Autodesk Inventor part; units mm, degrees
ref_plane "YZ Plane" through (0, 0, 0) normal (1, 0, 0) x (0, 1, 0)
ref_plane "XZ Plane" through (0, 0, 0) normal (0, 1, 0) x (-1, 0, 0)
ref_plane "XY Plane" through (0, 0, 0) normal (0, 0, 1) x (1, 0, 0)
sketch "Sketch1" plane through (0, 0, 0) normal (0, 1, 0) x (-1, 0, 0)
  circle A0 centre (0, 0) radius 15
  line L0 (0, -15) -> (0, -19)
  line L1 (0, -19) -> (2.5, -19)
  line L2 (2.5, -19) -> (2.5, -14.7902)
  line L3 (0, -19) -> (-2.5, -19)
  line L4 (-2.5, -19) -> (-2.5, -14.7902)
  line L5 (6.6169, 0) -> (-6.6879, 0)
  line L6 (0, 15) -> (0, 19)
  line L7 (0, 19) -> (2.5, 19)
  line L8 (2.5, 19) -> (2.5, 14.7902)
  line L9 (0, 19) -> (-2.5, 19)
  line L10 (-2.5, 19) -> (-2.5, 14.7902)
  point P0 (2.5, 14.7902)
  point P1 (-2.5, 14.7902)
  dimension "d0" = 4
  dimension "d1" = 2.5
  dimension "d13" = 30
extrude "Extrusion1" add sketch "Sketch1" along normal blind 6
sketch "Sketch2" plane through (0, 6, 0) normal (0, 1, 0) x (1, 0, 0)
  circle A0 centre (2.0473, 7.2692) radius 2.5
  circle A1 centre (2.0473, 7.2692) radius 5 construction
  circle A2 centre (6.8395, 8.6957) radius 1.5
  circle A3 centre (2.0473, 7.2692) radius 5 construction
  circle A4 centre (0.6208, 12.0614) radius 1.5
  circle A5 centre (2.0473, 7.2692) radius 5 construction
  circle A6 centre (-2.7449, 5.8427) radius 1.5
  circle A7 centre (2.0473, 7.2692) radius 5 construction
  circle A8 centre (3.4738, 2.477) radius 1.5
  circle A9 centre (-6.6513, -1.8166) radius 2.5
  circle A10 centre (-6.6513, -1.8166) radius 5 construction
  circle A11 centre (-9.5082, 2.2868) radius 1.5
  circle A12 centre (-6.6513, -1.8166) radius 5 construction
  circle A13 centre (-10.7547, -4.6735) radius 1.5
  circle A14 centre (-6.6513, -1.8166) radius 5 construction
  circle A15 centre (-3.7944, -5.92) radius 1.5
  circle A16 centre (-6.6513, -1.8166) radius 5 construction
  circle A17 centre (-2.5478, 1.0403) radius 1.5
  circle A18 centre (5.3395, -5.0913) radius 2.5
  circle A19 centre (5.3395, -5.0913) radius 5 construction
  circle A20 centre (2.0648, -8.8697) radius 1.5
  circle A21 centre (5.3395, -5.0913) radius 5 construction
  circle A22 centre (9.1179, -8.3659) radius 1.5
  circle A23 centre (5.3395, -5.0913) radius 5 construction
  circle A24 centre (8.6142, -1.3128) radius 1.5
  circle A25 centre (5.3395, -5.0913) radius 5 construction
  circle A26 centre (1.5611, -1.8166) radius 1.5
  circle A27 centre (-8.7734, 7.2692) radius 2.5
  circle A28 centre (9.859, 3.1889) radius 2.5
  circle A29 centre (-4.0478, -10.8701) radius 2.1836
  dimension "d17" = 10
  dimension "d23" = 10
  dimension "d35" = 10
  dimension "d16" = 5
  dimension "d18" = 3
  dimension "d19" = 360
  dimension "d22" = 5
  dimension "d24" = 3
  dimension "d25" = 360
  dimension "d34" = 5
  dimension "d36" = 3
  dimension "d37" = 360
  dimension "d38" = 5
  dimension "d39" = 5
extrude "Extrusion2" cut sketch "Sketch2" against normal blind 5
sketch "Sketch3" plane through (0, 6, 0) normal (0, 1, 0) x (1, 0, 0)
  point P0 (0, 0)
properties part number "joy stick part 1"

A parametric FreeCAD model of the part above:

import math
import FreeCAD as App
import Part
import Sketcher

doc = App.newDocument("Part")
body = doc.addObject("PartDesign::Body", "Body")

# Sketch on XZ plane
sketch1 = body.newObject("Sketcher::SketchObject", "Sketch")
sketch1.AttachmentSupport = (doc.getObject("XZ_Plane"), [""])
sketch1.MapMode = "FlatFace"
sketch1.addGeometry([
    Part.ArcOfCircle(Part.Circle(App.Vector(0, 0, 0), App.Vector(0, 0, 1), 15), math.radians(100), math.radians(260)),  # 0
    Part.LineSegment(App.Vector(-2.5, 14.8, 0), App.Vector(-2.5, 19, 0)),  # 1
    Part.LineSegment(App.Vector(-2.5, 19, 0), App.Vector(2.5, 19, 0)),  # 2
    Part.LineSegment(App.Vector(2.5, 19, 0), App.Vector(2.5, 14.8, 0)),  # 3
    Part.ArcOfCircle(Part.Circle(App.Vector(0, 0, 0), App.Vector(0, 0, 1), 15), math.radians(-80), math.radians(80)),  # 4
    Part.LineSegment(App.Vector(2.5, -14.8, 0), App.Vector(2.5, -19, 0)),  # 5
    Part.LineSegment(App.Vector(2.5, -19, 0), App.Vector(-2.5, -19, 0)),  # 6
    Part.LineSegment(App.Vector(-2.5, -19, 0), App.Vector(-2.5, -14.8, 0)),  # 7
], False)
sketch1.addConstraint([
    Sketcher.Constraint("Coincident", 0, 1, 1, 1),
    Sketcher.Constraint("Coincident", 1, 2, 2, 1),
    Sketcher.Constraint("Coincident", 2, 2, 3, 1),
    Sketcher.Constraint("Coincident", 3, 2, 4, 2),
    Sketcher.Constraint("Coincident", 4, 1, 5, 1),
    Sketcher.Constraint("Coincident", 5, 2, 6, 1),
    Sketcher.Constraint("Coincident", 6, 2, 7, 1),
    Sketcher.Constraint("Coincident", 7, 2, 0, 2),
    Sketcher.Constraint("Vertical", 1),
    Sketcher.Constraint("Horizontal", 2),
    Sketcher.Constraint("Vertical", 3),
    Sketcher.Constraint("Vertical", 5),
    Sketcher.Constraint("Horizontal", 6),
    Sketcher.Constraint("Vertical", 7),
    Sketcher.Constraint("Coincident", 0, 3, -1, 1),
    Sketcher.Constraint("Coincident", 4, 3, -1, 1),
    Sketcher.Constraint("Equal", 0, 4),
    Sketcher.Constraint("Symmetric", 1, 2, 5, 2, -1, 1),
    Sketcher.Constraint("Horizontal", 0, 1, 3, 2),
    Sketcher.Constraint("Horizontal", 4, 1, 7, 2),
    Sketcher.Constraint("Radius", 0, 15.0),
    Sketcher.Constraint("DistanceX", 0, 1, -1, 1, 2.5),
    Sketcher.Constraint("DistanceY", -1, 1, 1, 2, 19.0),
])
pad1 = body.newObject("PartDesign::Pad", "Pad")
pad1.Profile = sketch1
pad1.Length = 6
pad1.Reversed = True

# Sketch on XZ plane
sketch2 = body.newObject("Sketcher::SketchObject", "Sketch001")
sketch2.AttachmentSupport = (doc.getObject("XZ_Plane"), [""])
sketch2.MapMode = "FlatFace"
sketch2.AttachmentOffset = App.Placement(App.Vector(0, 0, -6), App.Rotation())
sketch2.addGeometry([
    Part.Circle(App.Vector(2, -7.3, 0), App.Vector(0, 0, 1), 2.5),  # 0
    Part.Circle(App.Vector(6.8, -8.7, 0), App.Vector(0, 0, 1), 1.5),  # 1
    Part.Circle(App.Vector(0.6, -12.1, 0), App.Vector(0, 0, 1), 1.5),  # 2
    Part.Circle(App.Vector(-2.7, -5.8, 0), App.Vector(0, 0, 1), 1.5),  # 3
    Part.Circle(App.Vector(3.5, -2.5, 0), App.Vector(0, 0, 1), 1.5),  # 4
    Part.Circle(App.Vector(-6.7, 1.8, 0), App.Vector(0, 0, 1), 2.5),  # 5
    Part.Circle(App.Vector(-9.5, -2.3, 0), App.Vector(0, 0, 1), 1.5),  # 6
    Part.Circle(App.Vector(-10.8, 4.7, 0), App.Vector(0, 0, 1), 1.5),  # 7
    Part.Circle(App.Vector(-3.8, 5.9, 0), App.Vector(0, 0, 1), 1.5),  # 8
    Part.Circle(App.Vector(-2.5, -1, 0), App.Vector(0, 0, 1), 1.5),  # 9
    Part.Circle(App.Vector(5.3, 5.1, 0), App.Vector(0, 0, 1), 2.5),  # 10
    Part.Circle(App.Vector(2.1, 8.9, 0), App.Vector(0, 0, 1), 1.5),  # 11
    Part.Circle(App.Vector(9.1, 8.4, 0), App.Vector(0, 0, 1), 1.5),  # 12
    Part.Circle(App.Vector(8.6, 1.3, 0), App.Vector(0, 0, 1), 1.5),  # 13
    Part.Circle(App.Vector(1.6, 1.8, 0), App.Vector(0, 0, 1), 1.5),  # 14
    Part.Circle(App.Vector(-8.8, -7.3, 0), App.Vector(0, 0, 1), 2.5),  # 15
    Part.Circle(App.Vector(9.9, -3.2, 0), App.Vector(0, 0, 1), 2.5),  # 16
    Part.Circle(App.Vector(-4, 10.9, 0), App.Vector(0, 0, 1), 2.2),  # 17
], False)
sketch2.addConstraint([
    Sketcher.Constraint("Equal", 1, 2),
    Sketcher.Constraint("Equal", 2, 3),
    Sketcher.Constraint("Equal", 3, 4),
    Sketcher.Constraint("Equal", 0, 5),
    Sketcher.Constraint("Equal", 4, 6),
    Sketcher.Constraint("Equal", 6, 7),
    Sketcher.Constraint("Equal", 7, 8),
    Sketcher.Constraint("Equal", 8, 9),
    Sketcher.Constraint("Equal", 5, 10),
    Sketcher.Constraint("Equal", 9, 11),
    Sketcher.Constraint("Equal", 11, 12),
    Sketcher.Constraint("Equal", 12, 13),
    Sketcher.Constraint("Equal", 13, 14),
    Sketcher.Constraint("Equal", 10, 15),
    Sketcher.Constraint("Equal", 15, 16),
    Sketcher.Constraint("Horizontal", 5, 3, 14, 3),
    Sketcher.Constraint("Horizontal", 0, 3, 15, 3),
    Sketcher.Constraint("Diameter", 0, 5.0),
    Sketcher.Constraint("Diameter", 1, 3.0),
    Sketcher.Constraint("Diameter", 17, 4.3672),
    Sketcher.Constraint("DistanceY", -1, 1, 8, 3, 5.92),
    Sketcher.Constraint("DistanceY", -1, 1, 17, 3, 10.87),
    Sketcher.Constraint("DistanceY", 9, 3, 11, 3, 9.91),
    Sketcher.Constraint("DistanceX", 3, 3, -1, 1, 2.745),
    Sketcher.Constraint("DistanceY", 4, 3, -1, 1, 2.477),
    Sketcher.Constraint("DistanceX", -1, 1, 12, 3, 9.118),
    Sketcher.Constraint("DistanceY", -1, 1, 12, 3, 8.366),
    Sketcher.Constraint("DistanceX", -1, 1, 14, 3, 1.561),
    Sketcher.Constraint("DistanceX", -1, 1, 16, 3, 9.859),
    Sketcher.Constraint("DistanceY", 16, 3, -1, 1, 3.189),
    Sketcher.Constraint("DistanceY", 1, 3, 3, 3, 2.853),
    Sketcher.Constraint("DistanceX", 2, 3, 4, 3, 2.853),
    Sketcher.Constraint("DistanceX", 5, 3, 4, 3, 10.125),
    Sketcher.Constraint("DistanceY", 2, 3, 5, 3, 13.878),
    Sketcher.Constraint("DistanceX", 6, 3, 5, 3, 2.857),
    Sketcher.Constraint("DistanceY", 3, 3, 6, 3, 3.556),
    Sketcher.Constraint("DistanceY", 5, 3, 7, 3, 2.857),
    Sketcher.Constraint("DistanceX", 7, 3, 0, 3, 12.802),
    Sketcher.Constraint("DistanceX", 5, 3, 8, 3, 2.857),
    Sketcher.Constraint("DistanceX", 3, 3, 9, 3, 0.197),
    Sketcher.Constraint("DistanceY", 9, 3, 5, 3, 2.857),
    Sketcher.Constraint("DistanceX", 8, 3, 10, 3, 9.134),
    Sketcher.Constraint("DistanceX", 5, 3, 11, 3, 8.716),
    Sketcher.Constraint("DistanceX", 11, 3, 12, 3, 7.053),
    Sketcher.Constraint("DistanceY", 13, 3, 12, 3, 7.053),
    Sketcher.Constraint("DistanceY", 13, 3, 11, 3, 7.557),
    Sketcher.Constraint("DistanceY", 15, 3, 9, 3, 6.229),
    Sketcher.Constraint("DistanceX", 15, 3, 5, 3, 2.122),
    Sketcher.Constraint("DistanceX", 7, 3, 17, 3, 6.707),
    Sketcher.Constraint("DistanceX", 17, 3, 14, 3, 5.609),
    Sketcher.Constraint("DistanceX", -1, 1, 1, 3, 6.8395),
    Sketcher.Constraint("DistanceY", 1, 3, -1, 1, 8.6957),
    Sketcher.Constraint("DistanceY", -1, 1, 10, 3, 5.0913),
    Sketcher.Constraint("DistanceX", -1, 1, 13, 3, 8.6142),
])
pocket1 = body.newObject("PartDesign::Pocket", "Pocket")
pocket1.Profile = sketch2
pocket1.Length = 5
pocket1.Reversed = True

doc.recompute()
